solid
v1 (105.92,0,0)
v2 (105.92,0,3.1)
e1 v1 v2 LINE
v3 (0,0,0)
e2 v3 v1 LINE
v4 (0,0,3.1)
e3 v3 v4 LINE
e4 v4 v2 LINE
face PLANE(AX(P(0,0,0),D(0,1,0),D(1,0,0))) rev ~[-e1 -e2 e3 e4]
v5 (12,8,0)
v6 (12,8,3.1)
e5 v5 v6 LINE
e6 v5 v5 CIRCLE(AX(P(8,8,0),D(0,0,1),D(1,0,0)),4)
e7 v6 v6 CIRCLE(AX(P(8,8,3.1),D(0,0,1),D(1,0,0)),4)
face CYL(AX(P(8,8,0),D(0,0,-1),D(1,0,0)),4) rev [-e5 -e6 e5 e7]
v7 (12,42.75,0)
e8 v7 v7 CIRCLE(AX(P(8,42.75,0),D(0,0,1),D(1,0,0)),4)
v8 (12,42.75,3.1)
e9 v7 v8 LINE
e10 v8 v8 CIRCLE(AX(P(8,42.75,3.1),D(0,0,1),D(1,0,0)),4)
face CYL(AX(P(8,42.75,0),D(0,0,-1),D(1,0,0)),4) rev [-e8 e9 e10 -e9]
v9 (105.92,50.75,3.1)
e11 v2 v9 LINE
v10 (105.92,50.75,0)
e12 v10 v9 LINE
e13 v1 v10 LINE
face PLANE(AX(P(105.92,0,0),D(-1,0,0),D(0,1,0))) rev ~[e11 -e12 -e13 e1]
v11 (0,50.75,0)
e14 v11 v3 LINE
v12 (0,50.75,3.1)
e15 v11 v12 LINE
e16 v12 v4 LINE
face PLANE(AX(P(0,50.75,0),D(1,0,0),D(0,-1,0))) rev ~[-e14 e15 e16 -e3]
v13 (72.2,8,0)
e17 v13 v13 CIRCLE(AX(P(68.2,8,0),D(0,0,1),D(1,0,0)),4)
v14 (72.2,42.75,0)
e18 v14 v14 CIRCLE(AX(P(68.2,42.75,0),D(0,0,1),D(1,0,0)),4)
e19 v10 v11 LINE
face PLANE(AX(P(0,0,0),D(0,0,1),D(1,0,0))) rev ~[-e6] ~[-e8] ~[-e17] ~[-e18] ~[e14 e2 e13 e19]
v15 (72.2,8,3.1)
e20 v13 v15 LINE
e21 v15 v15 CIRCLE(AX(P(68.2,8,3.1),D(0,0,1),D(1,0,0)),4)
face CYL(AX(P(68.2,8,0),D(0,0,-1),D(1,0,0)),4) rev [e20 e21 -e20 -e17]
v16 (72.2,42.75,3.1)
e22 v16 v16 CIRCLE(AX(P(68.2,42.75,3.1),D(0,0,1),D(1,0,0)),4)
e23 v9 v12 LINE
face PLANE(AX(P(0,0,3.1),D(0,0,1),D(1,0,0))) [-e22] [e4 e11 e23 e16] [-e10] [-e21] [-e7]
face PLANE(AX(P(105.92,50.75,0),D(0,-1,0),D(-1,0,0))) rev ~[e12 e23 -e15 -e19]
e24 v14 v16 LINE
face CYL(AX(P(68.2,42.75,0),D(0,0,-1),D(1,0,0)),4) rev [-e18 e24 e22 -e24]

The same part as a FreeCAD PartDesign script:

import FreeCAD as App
import Part
import Sketcher

V = App.Vector


def add_polygon(sketch, points):
    """Adds a closed chain of lines whose ends are joined by coincident constraints."""
    first, n = sketch.GeometryCount, len(points)
    for a, b in zip(points, points[1:] + points[:1]):
        sketch.addGeometry(Part.LineSegment(App.Vector(*a, 0), App.Vector(*b, 0)), False)
    for i in range(n):
        sketch.addConstraint(Sketcher.Constraint("Coincident", first + i, 2, first + (i + 1) % n, 1))

doc = App.newDocument("Part")
body = doc.addObject("PartDesign::Body", "Body")

# Sketch on XY plane
sketch1 = body.newObject("Sketcher::SketchObject", "Sketch")
sketch1.AttachmentSupport = (doc.getObject("XY_Plane"), [""])
sketch1.MapMode = "FlatFace"
add_polygon(sketch1, [(0, 50.8), (0, 0), (105.9, 0), (105.9, 50.8)])  # lines 0-3
sketch1.addGeometry(Part.Circle(V(8, 8, 0), V(0, 0, 1), 4), False)  # 4
sketch1.addGeometry(Part.Circle(V(68.2, 8, 0), V(0, 0, 1), 4), False)  # 5
sketch1.addGeometry(Part.Circle(V(8, 42.8, 0), V(0, 0, 1), 4), False)  # 6
sketch1.addGeometry(Part.Circle(V(68.2, 42.8, 0), V(0, 0, 1), 4), False)  # 7
sketch1.addConstraint([
    Sketcher.Constraint("Vertical", 0),
    Sketcher.Constraint("Horizontal", 1),
    Sketcher.Constraint("Vertical", 2),
    Sketcher.Constraint("Horizontal", 3),
    Sketcher.Constraint("Coincident", 0, 2, -1, 1),
    Sketcher.Constraint("Equal", 4, 5),
    Sketcher.Constraint("Equal", 5, 6),
    Sketcher.Constraint("Equal", 6, 7),
    Sketcher.Constraint("Horizontal", 4, 3, 5, 3),
    Sketcher.Constraint("Horizontal", 6, 3, 7, 3),
    Sketcher.Constraint("Vertical", 4, 3, 6, 3),
    Sketcher.Constraint("Vertical", 5, 3, 7, 3),
    Sketcher.Constraint("Diameter", 4, 8.0),
    Sketcher.Constraint("DistanceX", -1, 1, 4, 3, 8.0),
    Sketcher.Constraint("DistanceY", -1, 1, 4, 3, 8.0),
    Sketcher.Constraint("DistanceY", 7, 3, 2, 2, 8.0),
    Sketcher.Constraint("DistanceX", 1, 1, 1, 2, 105.92),
    Sketcher.Constraint("DistanceY", 0, 2, 0, 1, 50.75),
    Sketcher.Constraint("DistanceX", 4, 3, 5, 3, 60.2),
])
pad1 = body.newObject("PartDesign::Pad", "Pad")
pad1.Profile = sketch1
pad1.Length = 3.1

doc.recompute()
